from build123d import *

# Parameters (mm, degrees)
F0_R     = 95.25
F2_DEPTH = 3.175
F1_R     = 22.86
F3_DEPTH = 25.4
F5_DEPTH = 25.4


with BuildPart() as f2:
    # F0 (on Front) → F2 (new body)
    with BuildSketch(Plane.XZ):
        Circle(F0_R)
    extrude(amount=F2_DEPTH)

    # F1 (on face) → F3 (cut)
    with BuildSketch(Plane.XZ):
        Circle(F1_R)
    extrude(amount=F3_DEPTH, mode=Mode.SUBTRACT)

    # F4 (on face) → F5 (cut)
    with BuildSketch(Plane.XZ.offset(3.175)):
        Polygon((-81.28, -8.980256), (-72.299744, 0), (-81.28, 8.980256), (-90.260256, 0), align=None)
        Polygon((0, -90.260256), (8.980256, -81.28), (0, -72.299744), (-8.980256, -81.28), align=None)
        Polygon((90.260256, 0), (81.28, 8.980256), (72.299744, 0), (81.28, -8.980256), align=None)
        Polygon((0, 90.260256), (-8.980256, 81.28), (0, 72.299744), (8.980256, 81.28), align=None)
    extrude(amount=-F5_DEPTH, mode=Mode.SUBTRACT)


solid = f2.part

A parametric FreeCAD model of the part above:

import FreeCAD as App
import Part
import Sketcher

V = App.Vector
Q = App.Units.Quantity

doc = App.newDocument("Part")
body = doc.addObject("PartDesign::Body", "Body")

# Sketch on XZ plane
sketch1 = body.newObject("Sketcher::SketchObject", "Sketch")
sketch1.AttachmentSupport = (doc.getObject("XZ_Plane"), [""])
sketch1.MapMode = "FlatFace"
sketch1.addGeometry(Part.Circle(V(0, 0, 0), V(0, 0, 1), 95.25), False)
sketch1.addConstraint([
    Sketcher.Constraint("Coincident", 0, 3, -1, 1),
    Sketcher.Constraint("Diameter", 0, Q("7.5 in")),
])
pad1 = body.newObject("PartDesign::Pad", "Pad")
pad1.Profile = sketch1
pad1.Length = Q("0.125 in")

# Sketch on XZ plane
sketch2 = body.newObject("Sketcher::SketchObject", "Sketch001")
sketch2.AttachmentSupport = (doc.getObject("XZ_Plane"), [""])
sketch2.MapMode = "FlatFace"
sketch2.addGeometry(Part.Circle(V(0, 0, 0), V(0, 0, 1), 22.86), False)
sketch2.addConstraint([
    Sketcher.Constraint("Coincident", 0, 3, -1, 1),
    Sketcher.Constraint("Diameter", 0, Q("1.8 in")),
])
pocket1 = body.newObject("PartDesign::Pocket", "Pocket")
pocket1.Profile = sketch2
pocket1.Length = Q("1 in")
pocket1.Reversed = True

# Sketch on XZ plane
sketch3 = body.newObject("Sketcher::SketchObject", "Sketch002")
sketch3.AttachmentSupport = (doc.getObject("XZ_Plane"), [""])
sketch3.MapMode = "FlatFace"
sketch3.AttachmentOffset = App.Placement(V(0, 0, 0.125 * 25.4), App.Rotation())
sketch3.addGeometry([
    Part.LineSegment(V(-81.28, -8.980256, 0), V(-72.299744, 0, 0)),  # 0
    Part.LineSegment(V(-72.299744, 0, 0), V(-81.28, 8.980256, 0)),  # 1
    Part.LineSegment(V(-81.28, 8.980256, 0), V(-90.260256, 0, 0)),  # 2
    Part.LineSegment(V(-90.260256, 0, 0), V(-81.28, -8.980256, 0)),  # 3
    Part.LineSegment(V(0, -90.260256, 0), V(8.980256, -81.28, 0)),  # 4
    Part.LineSegment(V(8.980256, -81.28, 0), V(0, -72.299744, 0)),  # 5
    Part.LineSegment(V(0, -72.299744, 0), V(-8.980256, -81.28, 0)),  # 6
    Part.LineSegment(V(-8.980256, -81.28, 0), V(0, -90.260256, 0)),  # 7
    Part.LineSegment(V(90.260256, 0, 0), V(81.28, 8.980256, 0)),  # 8
    Part.LineSegment(V(81.28, 8.980256, 0), V(72.299744, 0, 0)),  # 9
    Part.LineSegment(V(72.299744, 0, 0), V(81.28, -8.980256, 0)),  # 10
    Part.LineSegment(V(81.28, -8.980256, 0), V(90.260256, 0, 0)),  # 11
    Part.LineSegment(V(0, 90.260256, 0), V(-8.980256, 81.28, 0)),  # 12
    Part.LineSegment(V(-8.980256, 81.28, 0), V(0, 72.299744, 0)),  # 13
    Part.LineSegment(V(0, 72.299744, 0), V(8.980256, 81.28, 0)),  # 14
    Part.LineSegment(V(8.980256, 81.28, 0), V(0, 90.260256, 0)),  # 15
], False)
sketch3.addConstraint([
    Sketcher.Constraint("Coincident", 0, 2, 1, 1),
    Sketcher.Constraint("Coincident", 1, 2, 2, 1),
    Sketcher.Constraint("Coincident", 2, 2, 3, 1),
    Sketcher.Constraint("Coincident", 3, 2, 0, 1),
    Sketcher.Constraint("Coincident", 4, 2, 5, 1),
    Sketcher.Constraint("Coincident", 5, 2, 6, 1),
    Sketcher.Constraint("Coincident", 6, 2, 7, 1),
    Sketcher.Constraint("Coincident", 7, 2, 4, 1),
    Sketcher.Constraint("Coincident", 8, 2, 9, 1),
    Sketcher.Constraint("Coincident", 9, 2, 10, 1),
    Sketcher.Constraint("Coincident", 10, 2, 11, 1),
    Sketcher.Constraint("Coincident", 11, 2, 8, 1),
    Sketcher.Constraint("Coincident", 12, 2, 13, 1),
    Sketcher.Constraint("Coincident", 13, 2, 14, 1),
    Sketcher.Constraint("Coincident", 14, 2, 15, 1),
    Sketcher.Constraint("Coincident", 15, 2, 12, 1),
    Sketcher.Constraint("Symmetric", 3, 2, 8, 2, -1, 1),
    Sketcher.Constraint("Symmetric", 0, 2, 9, 2, -1, 1),
    Sketcher.Constraint("Symmetric", 1, 2, 10, 2, -1, 1),
    Sketcher.Constraint("Symmetric", 2, 2, 11, 2, -1, 1),
    Sketcher.Constraint("Symmetric", 4, 2, 12, 2, -1, 1),
    Sketcher.Constraint("Symmetric", 5, 2, 13, 2, -1, 1),
    Sketcher.Constraint("Symmetric", 6, 2, 14, 2, -1, 1),
    Sketcher.Constraint("Symmetric", 7, 2, 15, 2, -1, 1),
    Sketcher.Constraint("Symmetric", 4, 2, 6, 2, -2),
    Sketcher.Constraint("Symmetric", 1, 2, 8, 2, -2),
    Sketcher.Constraint("PointOnObject", 0, 2, -1),
    Sketcher.Constraint("PointOnObject", 2, 2, -1),
    Sketcher.Constraint("PointOnObject", 5, 2, -2),
    Sketcher.Constraint("PointOnObject", 7, 2, -2),
    Sketcher.Constraint("Perpendicular", 0, 1),
    Sketcher.Constraint("Perpendicular", 1, 2),
    Sketcher.Constraint("Perpendicular", 3, 4),
    Sketcher.Constraint("Perpendicular", 4, 5),
    Sketcher.Constraint("Equal", 3, 4),
    Sketcher.Constraint("Distance", 0, Q("0.5 in")),
    Sketcher.Constraint("DistanceX", 1, 2, -1, 1, Q("3.2 in")),
    Sketcher.Constraint("DistanceY", 4, 2, -1, 1, Q("3.2 in")),
])
pocket2 = body.newObject("PartDesign::Pocket", "Pocket001")
pocket2.Profile = sketch3
pocket2.Length = Q("1 in")

doc.recompute()
